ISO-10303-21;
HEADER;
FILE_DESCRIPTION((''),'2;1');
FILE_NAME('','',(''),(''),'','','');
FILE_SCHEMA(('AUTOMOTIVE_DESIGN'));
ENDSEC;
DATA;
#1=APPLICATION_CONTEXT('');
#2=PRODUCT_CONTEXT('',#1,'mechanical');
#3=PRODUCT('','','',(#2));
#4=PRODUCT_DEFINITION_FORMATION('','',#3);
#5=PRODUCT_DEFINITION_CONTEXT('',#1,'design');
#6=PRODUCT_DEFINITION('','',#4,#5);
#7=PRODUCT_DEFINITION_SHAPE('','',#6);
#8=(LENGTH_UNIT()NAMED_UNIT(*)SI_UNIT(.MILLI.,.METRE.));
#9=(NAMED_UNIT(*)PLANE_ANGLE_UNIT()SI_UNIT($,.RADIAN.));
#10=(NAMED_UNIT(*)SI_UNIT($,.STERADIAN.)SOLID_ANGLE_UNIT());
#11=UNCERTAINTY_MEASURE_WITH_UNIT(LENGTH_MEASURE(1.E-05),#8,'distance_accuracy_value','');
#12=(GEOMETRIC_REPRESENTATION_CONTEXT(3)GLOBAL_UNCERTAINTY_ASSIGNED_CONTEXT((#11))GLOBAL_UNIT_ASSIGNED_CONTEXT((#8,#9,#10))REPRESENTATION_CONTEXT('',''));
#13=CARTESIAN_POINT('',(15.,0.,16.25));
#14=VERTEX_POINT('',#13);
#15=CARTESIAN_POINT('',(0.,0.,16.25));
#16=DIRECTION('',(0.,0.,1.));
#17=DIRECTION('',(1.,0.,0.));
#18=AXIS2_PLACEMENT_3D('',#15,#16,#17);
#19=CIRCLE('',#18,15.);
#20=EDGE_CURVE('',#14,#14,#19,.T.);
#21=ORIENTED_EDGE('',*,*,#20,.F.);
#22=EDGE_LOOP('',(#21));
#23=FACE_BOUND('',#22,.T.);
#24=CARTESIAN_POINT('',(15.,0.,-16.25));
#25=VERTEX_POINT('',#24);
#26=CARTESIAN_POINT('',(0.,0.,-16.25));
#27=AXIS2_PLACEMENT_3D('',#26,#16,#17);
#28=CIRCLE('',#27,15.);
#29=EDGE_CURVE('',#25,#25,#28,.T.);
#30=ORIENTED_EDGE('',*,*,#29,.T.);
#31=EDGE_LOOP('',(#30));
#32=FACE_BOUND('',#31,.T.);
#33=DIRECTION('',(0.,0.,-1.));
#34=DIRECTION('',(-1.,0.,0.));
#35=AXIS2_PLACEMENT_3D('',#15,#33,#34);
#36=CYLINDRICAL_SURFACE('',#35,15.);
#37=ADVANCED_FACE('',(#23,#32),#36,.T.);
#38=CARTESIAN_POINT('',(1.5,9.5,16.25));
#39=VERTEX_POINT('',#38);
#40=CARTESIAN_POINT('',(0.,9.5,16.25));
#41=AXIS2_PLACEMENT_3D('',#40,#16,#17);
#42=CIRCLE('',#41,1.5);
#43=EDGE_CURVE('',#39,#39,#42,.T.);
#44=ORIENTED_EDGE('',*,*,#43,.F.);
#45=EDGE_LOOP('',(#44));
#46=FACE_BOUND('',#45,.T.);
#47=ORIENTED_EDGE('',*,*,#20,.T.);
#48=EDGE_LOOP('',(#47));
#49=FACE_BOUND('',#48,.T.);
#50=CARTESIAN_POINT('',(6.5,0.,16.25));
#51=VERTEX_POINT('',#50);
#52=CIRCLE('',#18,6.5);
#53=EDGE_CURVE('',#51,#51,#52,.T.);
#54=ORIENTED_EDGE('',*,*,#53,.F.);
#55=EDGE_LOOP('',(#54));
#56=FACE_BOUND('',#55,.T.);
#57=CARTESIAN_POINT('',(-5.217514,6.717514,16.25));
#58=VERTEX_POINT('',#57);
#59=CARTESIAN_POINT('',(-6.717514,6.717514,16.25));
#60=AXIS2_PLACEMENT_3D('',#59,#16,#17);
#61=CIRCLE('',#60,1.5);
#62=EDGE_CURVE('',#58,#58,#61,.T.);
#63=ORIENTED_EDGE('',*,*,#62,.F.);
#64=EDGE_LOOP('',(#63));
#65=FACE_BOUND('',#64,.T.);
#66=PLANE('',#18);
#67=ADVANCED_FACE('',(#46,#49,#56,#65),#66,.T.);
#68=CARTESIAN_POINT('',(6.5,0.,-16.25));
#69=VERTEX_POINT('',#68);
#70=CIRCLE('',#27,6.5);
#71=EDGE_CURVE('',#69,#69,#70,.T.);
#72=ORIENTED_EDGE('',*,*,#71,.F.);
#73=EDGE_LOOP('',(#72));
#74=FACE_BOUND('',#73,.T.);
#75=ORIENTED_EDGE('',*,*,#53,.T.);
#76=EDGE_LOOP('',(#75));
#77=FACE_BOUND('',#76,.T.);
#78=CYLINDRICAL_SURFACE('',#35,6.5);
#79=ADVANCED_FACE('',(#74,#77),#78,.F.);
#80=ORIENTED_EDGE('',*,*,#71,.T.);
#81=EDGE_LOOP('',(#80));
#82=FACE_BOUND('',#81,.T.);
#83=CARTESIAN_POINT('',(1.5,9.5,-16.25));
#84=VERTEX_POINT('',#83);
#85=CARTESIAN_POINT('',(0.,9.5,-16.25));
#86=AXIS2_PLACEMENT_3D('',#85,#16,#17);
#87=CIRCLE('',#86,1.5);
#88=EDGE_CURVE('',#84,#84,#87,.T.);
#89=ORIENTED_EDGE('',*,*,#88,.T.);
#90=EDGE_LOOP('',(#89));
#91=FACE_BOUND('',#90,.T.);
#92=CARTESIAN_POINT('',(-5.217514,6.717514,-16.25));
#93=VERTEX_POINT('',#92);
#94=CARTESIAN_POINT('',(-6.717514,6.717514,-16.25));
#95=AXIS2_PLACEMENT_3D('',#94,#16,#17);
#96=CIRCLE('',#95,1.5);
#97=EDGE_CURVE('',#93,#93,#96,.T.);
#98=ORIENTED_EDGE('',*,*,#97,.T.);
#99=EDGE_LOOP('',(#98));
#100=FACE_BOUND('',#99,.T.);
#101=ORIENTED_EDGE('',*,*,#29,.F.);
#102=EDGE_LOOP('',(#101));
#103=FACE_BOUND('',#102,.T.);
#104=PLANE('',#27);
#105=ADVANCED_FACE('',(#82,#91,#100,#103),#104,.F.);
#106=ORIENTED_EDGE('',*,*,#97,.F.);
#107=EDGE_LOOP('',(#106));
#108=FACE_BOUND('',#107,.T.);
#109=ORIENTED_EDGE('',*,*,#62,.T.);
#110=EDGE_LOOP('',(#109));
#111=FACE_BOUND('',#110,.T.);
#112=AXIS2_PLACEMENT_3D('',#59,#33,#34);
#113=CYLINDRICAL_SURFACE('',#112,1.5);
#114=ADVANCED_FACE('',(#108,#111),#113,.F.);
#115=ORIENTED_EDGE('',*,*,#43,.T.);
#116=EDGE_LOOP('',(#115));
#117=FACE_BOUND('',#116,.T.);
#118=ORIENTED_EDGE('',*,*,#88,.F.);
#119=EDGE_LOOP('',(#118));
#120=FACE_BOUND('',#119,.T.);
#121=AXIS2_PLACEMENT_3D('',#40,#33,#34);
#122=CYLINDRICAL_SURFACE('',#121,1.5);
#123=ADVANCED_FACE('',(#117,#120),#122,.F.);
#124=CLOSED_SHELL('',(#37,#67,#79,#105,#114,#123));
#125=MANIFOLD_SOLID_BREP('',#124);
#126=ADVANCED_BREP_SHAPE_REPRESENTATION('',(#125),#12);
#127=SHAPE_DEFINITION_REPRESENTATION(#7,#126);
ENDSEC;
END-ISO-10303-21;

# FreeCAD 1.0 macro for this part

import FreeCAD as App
import Part
import Sketcher

doc = App.newDocument("Part")
body = doc.addObject("PartDesign::Body", "Body")

sketch1 = doc.addObject("Sketcher::SketchObject", "Sketch")
body.addObject(sketch1)
sketch1.AttachmentSupport = (doc.XY_Plane, [""])
sketch1.MapMode = "FlatFace"
sketch1.addGeometry([
    Part.Circle(App.Vector(0, 0, 0), App.Vector(0, 0, 1), 15),
    Part.Circle(App.Vector(0, 0, 0), App.Vector(0, 0, 1), 6.5),
    Part.Circle(App.Vector(-6.7, 6.7, 0), App.Vector(0, 0, 1), 1.5),
    Part.Circle(App.Vector(0, 9.5, 0), App.Vector(0, 0, 1), 1.5),
], False)
sketch1.addConstraint([
    Sketcher.Constraint("Coincident", 0, 3, -1, 1),
    Sketcher.Constraint("Coincident", 1, 3, -1, 1),
    Sketcher.Constraint("Equal", 2, 3),
    Sketcher.Constraint("PointOnObject", 3, 3, -2),
    Sketcher.Constraint("Diameter", 0, 30.0),
    Sketcher.Constraint("Diameter", 1, 13.0),
    Sketcher.Constraint("Diameter", 2, 3.0),
    Sketcher.Constraint("DistanceY", -1, 1, 3, 3, 9.5),
    Sketcher.Constraint("DistanceX", 2, 3, -1, 1, 6.717514),
    Sketcher.Constraint("DistanceY", -1, 1, 2, 3, 6.717514),
])
pad1 = doc.addObject("PartDesign::Pad", "Pad")
body.addObject(pad1)
pad1.Profile = sketch1
pad1.Length = 32.5
pad1.Midplane = True

doc.recompute()
